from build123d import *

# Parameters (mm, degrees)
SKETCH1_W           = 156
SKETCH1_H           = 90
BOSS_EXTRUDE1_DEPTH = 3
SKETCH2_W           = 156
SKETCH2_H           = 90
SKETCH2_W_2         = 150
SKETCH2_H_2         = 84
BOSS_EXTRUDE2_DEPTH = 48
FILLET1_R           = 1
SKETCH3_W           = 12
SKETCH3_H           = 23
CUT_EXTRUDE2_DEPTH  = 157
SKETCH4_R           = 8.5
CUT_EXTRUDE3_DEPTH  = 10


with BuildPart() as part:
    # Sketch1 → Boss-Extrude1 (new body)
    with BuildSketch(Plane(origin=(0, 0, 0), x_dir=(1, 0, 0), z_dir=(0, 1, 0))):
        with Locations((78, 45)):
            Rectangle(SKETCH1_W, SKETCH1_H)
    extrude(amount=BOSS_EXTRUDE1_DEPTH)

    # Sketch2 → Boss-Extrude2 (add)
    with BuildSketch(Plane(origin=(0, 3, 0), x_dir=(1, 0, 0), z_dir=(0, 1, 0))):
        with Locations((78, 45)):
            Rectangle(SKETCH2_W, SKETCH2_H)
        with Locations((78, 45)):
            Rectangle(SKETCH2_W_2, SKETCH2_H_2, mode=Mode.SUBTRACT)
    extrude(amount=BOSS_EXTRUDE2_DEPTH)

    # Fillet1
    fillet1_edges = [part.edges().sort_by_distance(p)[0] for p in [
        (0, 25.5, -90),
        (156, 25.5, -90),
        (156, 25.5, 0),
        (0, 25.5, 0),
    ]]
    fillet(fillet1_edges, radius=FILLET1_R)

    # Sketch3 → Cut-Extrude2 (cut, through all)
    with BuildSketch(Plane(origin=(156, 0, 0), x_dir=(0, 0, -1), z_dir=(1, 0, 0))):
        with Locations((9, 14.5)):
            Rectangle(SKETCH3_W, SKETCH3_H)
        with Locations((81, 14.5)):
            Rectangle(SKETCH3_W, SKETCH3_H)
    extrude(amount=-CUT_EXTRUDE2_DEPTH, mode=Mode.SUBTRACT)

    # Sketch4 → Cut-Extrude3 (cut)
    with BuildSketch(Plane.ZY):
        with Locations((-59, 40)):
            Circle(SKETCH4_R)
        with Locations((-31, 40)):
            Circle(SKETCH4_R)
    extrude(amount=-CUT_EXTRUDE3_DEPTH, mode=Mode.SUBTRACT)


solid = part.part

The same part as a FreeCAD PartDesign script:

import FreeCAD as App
import Part
import Sketcher
from FreeCAD import Vector
Q = App.Units.Quantity


def edges_at(feature, points):
    """Names of the edges that pass closest to the given points."""
    edges = feature.Shape.Edges
    near = lambda p: min(range(len(edges)), key=lambda i: edges[i].distToShape(Part.Vertex(*p))[0])
    return sorted({f"Edge{near(p) + 1}" for p in points})

doc = App.newDocument("Part")
body = doc.addObject("PartDesign::Body", "Body")

sketch1 = body.newObject("Sketcher::SketchObject", "Sketch")
sketch1.AttachmentSupport = (doc.getObject("XZ_Plane"), [""])
sketch1.MapMode = "FlatFace"
sketch1.addGeometry(Part.LineSegment(Vector(0, -90, 0), Vector(0, 0, 0)), False)
sketch1.addGeometry(Part.LineSegment(Vector(0, 0, 0), Vector(156, 0, 0)), False)
sketch1.addGeometry(Part.LineSegment(Vector(156, 0, 0), Vector(156, -90, 0)), False)
sketch1.addGeometry(Part.LineSegment(Vector(156, -90, 0), Vector(0, -90, 0)), False)
sketch1.addConstraint(Sketcher.Constraint("Coincident", 0, 2, 1, 1))
sketch1.addConstraint(Sketcher.Constraint("Coincident", 1, 2, 2, 1))
sketch1.addConstraint(Sketcher.Constraint("Coincident", 2, 2, 3, 1))
sketch1.addConstraint(Sketcher.Constraint("Coincident", 3, 2, 0, 1))
sketch1.addConstraint(Sketcher.Constraint("Vertical", 0))
sketch1.addConstraint(Sketcher.Constraint("Horizontal", 1))
sketch1.addConstraint(Sketcher.Constraint("Vertical", 2))
sketch1.addConstraint(Sketcher.Constraint("Horizontal", 3))
sketch1.addConstraint(Sketcher.Constraint("Coincident", 0, 2, -1, 1))
sketch1.addConstraint(Sketcher.Constraint("DistanceX", 1, 1, 1, 2, Q("156 mm")))
sketch1.addConstraint(Sketcher.Constraint("DistanceY", 0, 1, 0, 2, Q("90 mm")))
pad1 = body.newObject("PartDesign::Pad", "Pad")
pad1.Profile = sketch1
pad1.Length = 3
pad1.Reversed = True

sketch2 = body.newObject("Sketcher::SketchObject", "Sketch001")
sketch2.AttachmentSupport = (doc.getObject("XZ_Plane"), [""])
sketch2.MapMode = "FlatFace"
sketch2.AttachmentOffset = App.Placement(Vector(0, 0, -3), App.Rotation())
sketch2.addGeometry(Part.LineSegment(Vector(0, -90, 0), Vector(0, 0, 0)), False)
sketch2.addGeometry(Part.LineSegment(Vector(0, 0, 0), Vector(156, 0, 0)), False)
sketch2.addGeometry(Part.LineSegment(Vector(156, 0, 0), Vector(156, -90, 0)), False)
sketch2.addGeometry(Part.LineSegment(Vector(156, -90, 0), Vector(0, -90, 0)), False)
sketch2.addGeometry(Part.LineSegment(Vector(153, -3, 0), Vector(3, -3, 0)), False)
sketch2.addGeometry(Part.LineSegment(Vector(3, -3, 0), Vector(3, -87, 0)), False)
sketch2.addGeometry(Part.LineSegment(Vector(3, -87, 0), Vector(153, -87, 0)), False)
sketch2.addGeometry(Part.LineSegment(Vector(153, -87, 0), Vector(153, -3, 0)), False)
sketch2.addConstraint(Sketcher.Constraint("Coincident", 0, 2, 1, 1))
sketch2.addConstraint(Sketcher.Constraint("Coincident", 1, 2, 2, 1))
sketch2.addConstraint(Sketcher.Constraint("Coincident", 2, 2, 3, 1))
sketch2.addConstraint(Sketcher.Constraint("Coincident", 3, 2, 0, 1))
sketch2.addConstraint(Sketcher.Constraint("Coincident", 4, 2, 5, 1))
sketch2.addConstraint(Sketcher.Constraint("Coincident", 5, 2, 6, 1))
sketch2.addConstraint(Sketcher.Constraint("Coincident", 6, 2, 7, 1))
sketch2.addConstraint(Sketcher.Constraint("Coincident", 7, 2, 4, 1))
sketch2.addConstraint(Sketcher.Constraint("Vertical", 0))
sketch2.addConstraint(Sketcher.Constraint("Horizontal", 1))
sketch2.addConstraint(Sketcher.Constraint("Vertical", 2))
sketch2.addConstraint(Sketcher.Constraint("Horizontal", 3))
sketch2.addConstraint(Sketcher.Constraint("Horizontal", 4))
sketch2.addConstraint(Sketcher.Constraint("Vertical", 5))
sketch2.addConstraint(Sketcher.Constraint("Horizontal", 6))
sketch2.addConstraint(Sketcher.Constraint("Vertical", 7))
sketch2.addConstraint(Sketcher.Constraint("Coincident", 0, 2, -1, 1))
sketch2.addConstraint(Sketcher.Constraint("DistanceX", 1, 1, 1, 2, Q("156 mm")))
sketch2.addConstraint(Sketcher.Constraint("DistanceX", 4, 2, 4, 1, Q("150 mm")))
sketch2.addConstraint(Sketcher.Constraint("DistanceY", 0, 1, 0, 2, Q("90 mm")))
sketch2.addConstraint(Sketcher.Constraint("DistanceY", 5, 2, 5, 1, Q("84 mm")))
sketch2.addConstraint(Sketcher.Constraint("DistanceX", -1, 1, 4, 2, Q("3 mm")))
sketch2.addConstraint(Sketcher.Constraint("DistanceY", 4, 2, -1, 1, Q("3 mm")))
pad2 = body.newObject("PartDesign::Pad", "Pad001")
pad2.Profile = sketch2
pad2.Length = 48
pad2.Reversed = True
doc.recompute()

fillet = body.newObject("PartDesign::Fillet", "Fillet")
fillet.Base = (pad2, edges_at(pad2, [
    (0, 25.5, -90),
    (156, 25.5, -90),
    (156, 25.5, 0),
    (0, 25.5, 0),
]))
fillet.Radius = 1

sketch3 = body.newObject("Sketcher::SketchObject", "Sketch002")
sketch3.AttachmentSupport = (doc.getObject("YZ_Plane"), [""])
sketch3.MapMode = "FlatFace"
sketch3.AttachmentOffset = App.Placement(Vector(0, 0, 156), App.Rotation())
sketch3.addGeometry(Part.LineSegment(Vector(26, -3, 0), Vector(3, -3, 0)), False)
sketch3.addGeometry(Part.LineSegment(Vector(3, -3, 0), Vector(3, -15, 0)), False)
sketch3.addGeometry(Part.LineSegment(Vector(3, -15, 0), Vector(26, -15, 0)), False)
sketch3.addGeometry(Part.LineSegment(Vector(26, -15, 0), Vector(26, -3, 0)), False)
sketch3.addGeometry(Part.LineSegment(Vector(26, -75, 0), Vector(3, -75, 0)), False)
sketch3.addGeometry(Part.LineSegment(Vector(3, -75, 0), Vector(3, -87, 0)), False)
sketch3.addGeometry(Part.LineSegment(Vector(3, -87, 0), Vector(26, -87, 0)), False)
sketch3.addGeometry(Part.LineSegment(Vector(26, -87, 0), Vector(26, -75, 0)), False)
sketch3.addConstraint(Sketcher.Constraint("Coincident", 0, 2, 1, 1))
sketch3.addConstraint(Sketcher.Constraint("Coincident", 1, 2, 2, 1))
sketch3.addConstraint(Sketcher.Constraint("Coincident", 2, 2, 3, 1))
sketch3.addConstraint(Sketcher.Constraint("Coincident", 3, 2, 0, 1))
sketch3.addConstraint(Sketcher.Constraint("Coincident", 4, 2, 5, 1))
sketch3.addConstraint(Sketcher.Constraint("Coincident", 5, 2, 6, 1))
sketch3.addConstraint(Sketcher.Constraint("Coincident", 6, 2, 7, 1))
sketch3.addConstraint(Sketcher.Constraint("Coincident", 7, 2, 4, 1))
sketch3.addConstraint(Sketcher.Constraint("Horizontal", 0))
sketch3.addConstraint(Sketcher.Constraint("Vertical", 1))
sketch3.addConstraint(Sketcher.Constraint("Horizontal", 2))
sketch3.addConstraint(Sketcher.Constraint("Vertical", 3))
sketch3.addConstraint(Sketcher.Constraint("Horizontal", 4))
sketch3.addConstraint(Sketcher.Constraint("Vertical", 5))
sketch3.addConstraint(Sketcher.Constraint("Horizontal", 6))
sketch3.addConstraint(Sketcher.Constraint("Vertical", 7))
sketch3.addConstraint(Sketcher.Constraint("Vertical", 1, 2, 4, 2))
sketch3.addConstraint(Sketcher.Constraint("Vertical", 3, 2, 6, 2))
sketch3.addConstraint(Sketcher.Constraint("Equal", 3, 5))
sketch3.addConstraint(Sketcher.Constraint("DistanceX", 0, 2, 0, 1, Q("23 mm")))
sketch3.addConstraint(Sketcher.Constraint("DistanceY", 1, 2, 1, 1, Q("12 mm")))
sketch3.addConstraint(Sketcher.Constraint("DistanceX", -1, 1, 0, 2, Q("3 mm")))
sketch3.addConstraint(Sketcher.Constraint("DistanceY", 0, 2, -1, 1, Q("3 mm")))
sketch3.addConstraint(Sketcher.Constraint("DistanceY", 4, 2, -1, 1, Q("75 mm")))
pocket1 = body.newObject("PartDesign::Pocket", "Pocket")
pocket1.Profile = sketch3
pocket1.Type = "ThroughAll"

sketch4 = body.newObject("Sketcher::SketchObject", "Sketch003")
sketch4.AttachmentSupport = (doc.getObject("YZ_Plane"), [""])
sketch4.MapMode = "FlatFace"
sketch4.addGeometry(Part.Circle(Vector(40, -59, 0), Vector(0, 0, 1), 8.5), False)
sketch4.addGeometry(Part.Circle(Vector(40, -31, 0), Vector(0, 0, 1), 8.5), False)
sketch4.addConstraint(Sketcher.Constraint("Equal", 0, 1))
sketch4.addConstraint(Sketcher.Constraint("Vertical", 0, 3, 1, 3))
sketch4.addConstraint(Sketcher.Constraint("Diameter", 0, Q("17 mm")))
sketch4.addConstraint(Sketcher.Constraint("DistanceX", -1, 1, 0, 3, Q("40 mm")))
sketch4.addConstraint(Sketcher.Constraint("DistanceY", 0, 3, -1, 1, Q("59 mm")))
sketch4.addConstraint(Sketcher.Constraint("DistanceY", 1, 3, -1, 1, Q("31 mm")))
pocket2 = body.newObject("PartDesign::Pocket", "Pocket001")
pocket2.Profile = sketch4
pocket2.Length = 10
pocket2.Reversed = True

doc.recompute()
